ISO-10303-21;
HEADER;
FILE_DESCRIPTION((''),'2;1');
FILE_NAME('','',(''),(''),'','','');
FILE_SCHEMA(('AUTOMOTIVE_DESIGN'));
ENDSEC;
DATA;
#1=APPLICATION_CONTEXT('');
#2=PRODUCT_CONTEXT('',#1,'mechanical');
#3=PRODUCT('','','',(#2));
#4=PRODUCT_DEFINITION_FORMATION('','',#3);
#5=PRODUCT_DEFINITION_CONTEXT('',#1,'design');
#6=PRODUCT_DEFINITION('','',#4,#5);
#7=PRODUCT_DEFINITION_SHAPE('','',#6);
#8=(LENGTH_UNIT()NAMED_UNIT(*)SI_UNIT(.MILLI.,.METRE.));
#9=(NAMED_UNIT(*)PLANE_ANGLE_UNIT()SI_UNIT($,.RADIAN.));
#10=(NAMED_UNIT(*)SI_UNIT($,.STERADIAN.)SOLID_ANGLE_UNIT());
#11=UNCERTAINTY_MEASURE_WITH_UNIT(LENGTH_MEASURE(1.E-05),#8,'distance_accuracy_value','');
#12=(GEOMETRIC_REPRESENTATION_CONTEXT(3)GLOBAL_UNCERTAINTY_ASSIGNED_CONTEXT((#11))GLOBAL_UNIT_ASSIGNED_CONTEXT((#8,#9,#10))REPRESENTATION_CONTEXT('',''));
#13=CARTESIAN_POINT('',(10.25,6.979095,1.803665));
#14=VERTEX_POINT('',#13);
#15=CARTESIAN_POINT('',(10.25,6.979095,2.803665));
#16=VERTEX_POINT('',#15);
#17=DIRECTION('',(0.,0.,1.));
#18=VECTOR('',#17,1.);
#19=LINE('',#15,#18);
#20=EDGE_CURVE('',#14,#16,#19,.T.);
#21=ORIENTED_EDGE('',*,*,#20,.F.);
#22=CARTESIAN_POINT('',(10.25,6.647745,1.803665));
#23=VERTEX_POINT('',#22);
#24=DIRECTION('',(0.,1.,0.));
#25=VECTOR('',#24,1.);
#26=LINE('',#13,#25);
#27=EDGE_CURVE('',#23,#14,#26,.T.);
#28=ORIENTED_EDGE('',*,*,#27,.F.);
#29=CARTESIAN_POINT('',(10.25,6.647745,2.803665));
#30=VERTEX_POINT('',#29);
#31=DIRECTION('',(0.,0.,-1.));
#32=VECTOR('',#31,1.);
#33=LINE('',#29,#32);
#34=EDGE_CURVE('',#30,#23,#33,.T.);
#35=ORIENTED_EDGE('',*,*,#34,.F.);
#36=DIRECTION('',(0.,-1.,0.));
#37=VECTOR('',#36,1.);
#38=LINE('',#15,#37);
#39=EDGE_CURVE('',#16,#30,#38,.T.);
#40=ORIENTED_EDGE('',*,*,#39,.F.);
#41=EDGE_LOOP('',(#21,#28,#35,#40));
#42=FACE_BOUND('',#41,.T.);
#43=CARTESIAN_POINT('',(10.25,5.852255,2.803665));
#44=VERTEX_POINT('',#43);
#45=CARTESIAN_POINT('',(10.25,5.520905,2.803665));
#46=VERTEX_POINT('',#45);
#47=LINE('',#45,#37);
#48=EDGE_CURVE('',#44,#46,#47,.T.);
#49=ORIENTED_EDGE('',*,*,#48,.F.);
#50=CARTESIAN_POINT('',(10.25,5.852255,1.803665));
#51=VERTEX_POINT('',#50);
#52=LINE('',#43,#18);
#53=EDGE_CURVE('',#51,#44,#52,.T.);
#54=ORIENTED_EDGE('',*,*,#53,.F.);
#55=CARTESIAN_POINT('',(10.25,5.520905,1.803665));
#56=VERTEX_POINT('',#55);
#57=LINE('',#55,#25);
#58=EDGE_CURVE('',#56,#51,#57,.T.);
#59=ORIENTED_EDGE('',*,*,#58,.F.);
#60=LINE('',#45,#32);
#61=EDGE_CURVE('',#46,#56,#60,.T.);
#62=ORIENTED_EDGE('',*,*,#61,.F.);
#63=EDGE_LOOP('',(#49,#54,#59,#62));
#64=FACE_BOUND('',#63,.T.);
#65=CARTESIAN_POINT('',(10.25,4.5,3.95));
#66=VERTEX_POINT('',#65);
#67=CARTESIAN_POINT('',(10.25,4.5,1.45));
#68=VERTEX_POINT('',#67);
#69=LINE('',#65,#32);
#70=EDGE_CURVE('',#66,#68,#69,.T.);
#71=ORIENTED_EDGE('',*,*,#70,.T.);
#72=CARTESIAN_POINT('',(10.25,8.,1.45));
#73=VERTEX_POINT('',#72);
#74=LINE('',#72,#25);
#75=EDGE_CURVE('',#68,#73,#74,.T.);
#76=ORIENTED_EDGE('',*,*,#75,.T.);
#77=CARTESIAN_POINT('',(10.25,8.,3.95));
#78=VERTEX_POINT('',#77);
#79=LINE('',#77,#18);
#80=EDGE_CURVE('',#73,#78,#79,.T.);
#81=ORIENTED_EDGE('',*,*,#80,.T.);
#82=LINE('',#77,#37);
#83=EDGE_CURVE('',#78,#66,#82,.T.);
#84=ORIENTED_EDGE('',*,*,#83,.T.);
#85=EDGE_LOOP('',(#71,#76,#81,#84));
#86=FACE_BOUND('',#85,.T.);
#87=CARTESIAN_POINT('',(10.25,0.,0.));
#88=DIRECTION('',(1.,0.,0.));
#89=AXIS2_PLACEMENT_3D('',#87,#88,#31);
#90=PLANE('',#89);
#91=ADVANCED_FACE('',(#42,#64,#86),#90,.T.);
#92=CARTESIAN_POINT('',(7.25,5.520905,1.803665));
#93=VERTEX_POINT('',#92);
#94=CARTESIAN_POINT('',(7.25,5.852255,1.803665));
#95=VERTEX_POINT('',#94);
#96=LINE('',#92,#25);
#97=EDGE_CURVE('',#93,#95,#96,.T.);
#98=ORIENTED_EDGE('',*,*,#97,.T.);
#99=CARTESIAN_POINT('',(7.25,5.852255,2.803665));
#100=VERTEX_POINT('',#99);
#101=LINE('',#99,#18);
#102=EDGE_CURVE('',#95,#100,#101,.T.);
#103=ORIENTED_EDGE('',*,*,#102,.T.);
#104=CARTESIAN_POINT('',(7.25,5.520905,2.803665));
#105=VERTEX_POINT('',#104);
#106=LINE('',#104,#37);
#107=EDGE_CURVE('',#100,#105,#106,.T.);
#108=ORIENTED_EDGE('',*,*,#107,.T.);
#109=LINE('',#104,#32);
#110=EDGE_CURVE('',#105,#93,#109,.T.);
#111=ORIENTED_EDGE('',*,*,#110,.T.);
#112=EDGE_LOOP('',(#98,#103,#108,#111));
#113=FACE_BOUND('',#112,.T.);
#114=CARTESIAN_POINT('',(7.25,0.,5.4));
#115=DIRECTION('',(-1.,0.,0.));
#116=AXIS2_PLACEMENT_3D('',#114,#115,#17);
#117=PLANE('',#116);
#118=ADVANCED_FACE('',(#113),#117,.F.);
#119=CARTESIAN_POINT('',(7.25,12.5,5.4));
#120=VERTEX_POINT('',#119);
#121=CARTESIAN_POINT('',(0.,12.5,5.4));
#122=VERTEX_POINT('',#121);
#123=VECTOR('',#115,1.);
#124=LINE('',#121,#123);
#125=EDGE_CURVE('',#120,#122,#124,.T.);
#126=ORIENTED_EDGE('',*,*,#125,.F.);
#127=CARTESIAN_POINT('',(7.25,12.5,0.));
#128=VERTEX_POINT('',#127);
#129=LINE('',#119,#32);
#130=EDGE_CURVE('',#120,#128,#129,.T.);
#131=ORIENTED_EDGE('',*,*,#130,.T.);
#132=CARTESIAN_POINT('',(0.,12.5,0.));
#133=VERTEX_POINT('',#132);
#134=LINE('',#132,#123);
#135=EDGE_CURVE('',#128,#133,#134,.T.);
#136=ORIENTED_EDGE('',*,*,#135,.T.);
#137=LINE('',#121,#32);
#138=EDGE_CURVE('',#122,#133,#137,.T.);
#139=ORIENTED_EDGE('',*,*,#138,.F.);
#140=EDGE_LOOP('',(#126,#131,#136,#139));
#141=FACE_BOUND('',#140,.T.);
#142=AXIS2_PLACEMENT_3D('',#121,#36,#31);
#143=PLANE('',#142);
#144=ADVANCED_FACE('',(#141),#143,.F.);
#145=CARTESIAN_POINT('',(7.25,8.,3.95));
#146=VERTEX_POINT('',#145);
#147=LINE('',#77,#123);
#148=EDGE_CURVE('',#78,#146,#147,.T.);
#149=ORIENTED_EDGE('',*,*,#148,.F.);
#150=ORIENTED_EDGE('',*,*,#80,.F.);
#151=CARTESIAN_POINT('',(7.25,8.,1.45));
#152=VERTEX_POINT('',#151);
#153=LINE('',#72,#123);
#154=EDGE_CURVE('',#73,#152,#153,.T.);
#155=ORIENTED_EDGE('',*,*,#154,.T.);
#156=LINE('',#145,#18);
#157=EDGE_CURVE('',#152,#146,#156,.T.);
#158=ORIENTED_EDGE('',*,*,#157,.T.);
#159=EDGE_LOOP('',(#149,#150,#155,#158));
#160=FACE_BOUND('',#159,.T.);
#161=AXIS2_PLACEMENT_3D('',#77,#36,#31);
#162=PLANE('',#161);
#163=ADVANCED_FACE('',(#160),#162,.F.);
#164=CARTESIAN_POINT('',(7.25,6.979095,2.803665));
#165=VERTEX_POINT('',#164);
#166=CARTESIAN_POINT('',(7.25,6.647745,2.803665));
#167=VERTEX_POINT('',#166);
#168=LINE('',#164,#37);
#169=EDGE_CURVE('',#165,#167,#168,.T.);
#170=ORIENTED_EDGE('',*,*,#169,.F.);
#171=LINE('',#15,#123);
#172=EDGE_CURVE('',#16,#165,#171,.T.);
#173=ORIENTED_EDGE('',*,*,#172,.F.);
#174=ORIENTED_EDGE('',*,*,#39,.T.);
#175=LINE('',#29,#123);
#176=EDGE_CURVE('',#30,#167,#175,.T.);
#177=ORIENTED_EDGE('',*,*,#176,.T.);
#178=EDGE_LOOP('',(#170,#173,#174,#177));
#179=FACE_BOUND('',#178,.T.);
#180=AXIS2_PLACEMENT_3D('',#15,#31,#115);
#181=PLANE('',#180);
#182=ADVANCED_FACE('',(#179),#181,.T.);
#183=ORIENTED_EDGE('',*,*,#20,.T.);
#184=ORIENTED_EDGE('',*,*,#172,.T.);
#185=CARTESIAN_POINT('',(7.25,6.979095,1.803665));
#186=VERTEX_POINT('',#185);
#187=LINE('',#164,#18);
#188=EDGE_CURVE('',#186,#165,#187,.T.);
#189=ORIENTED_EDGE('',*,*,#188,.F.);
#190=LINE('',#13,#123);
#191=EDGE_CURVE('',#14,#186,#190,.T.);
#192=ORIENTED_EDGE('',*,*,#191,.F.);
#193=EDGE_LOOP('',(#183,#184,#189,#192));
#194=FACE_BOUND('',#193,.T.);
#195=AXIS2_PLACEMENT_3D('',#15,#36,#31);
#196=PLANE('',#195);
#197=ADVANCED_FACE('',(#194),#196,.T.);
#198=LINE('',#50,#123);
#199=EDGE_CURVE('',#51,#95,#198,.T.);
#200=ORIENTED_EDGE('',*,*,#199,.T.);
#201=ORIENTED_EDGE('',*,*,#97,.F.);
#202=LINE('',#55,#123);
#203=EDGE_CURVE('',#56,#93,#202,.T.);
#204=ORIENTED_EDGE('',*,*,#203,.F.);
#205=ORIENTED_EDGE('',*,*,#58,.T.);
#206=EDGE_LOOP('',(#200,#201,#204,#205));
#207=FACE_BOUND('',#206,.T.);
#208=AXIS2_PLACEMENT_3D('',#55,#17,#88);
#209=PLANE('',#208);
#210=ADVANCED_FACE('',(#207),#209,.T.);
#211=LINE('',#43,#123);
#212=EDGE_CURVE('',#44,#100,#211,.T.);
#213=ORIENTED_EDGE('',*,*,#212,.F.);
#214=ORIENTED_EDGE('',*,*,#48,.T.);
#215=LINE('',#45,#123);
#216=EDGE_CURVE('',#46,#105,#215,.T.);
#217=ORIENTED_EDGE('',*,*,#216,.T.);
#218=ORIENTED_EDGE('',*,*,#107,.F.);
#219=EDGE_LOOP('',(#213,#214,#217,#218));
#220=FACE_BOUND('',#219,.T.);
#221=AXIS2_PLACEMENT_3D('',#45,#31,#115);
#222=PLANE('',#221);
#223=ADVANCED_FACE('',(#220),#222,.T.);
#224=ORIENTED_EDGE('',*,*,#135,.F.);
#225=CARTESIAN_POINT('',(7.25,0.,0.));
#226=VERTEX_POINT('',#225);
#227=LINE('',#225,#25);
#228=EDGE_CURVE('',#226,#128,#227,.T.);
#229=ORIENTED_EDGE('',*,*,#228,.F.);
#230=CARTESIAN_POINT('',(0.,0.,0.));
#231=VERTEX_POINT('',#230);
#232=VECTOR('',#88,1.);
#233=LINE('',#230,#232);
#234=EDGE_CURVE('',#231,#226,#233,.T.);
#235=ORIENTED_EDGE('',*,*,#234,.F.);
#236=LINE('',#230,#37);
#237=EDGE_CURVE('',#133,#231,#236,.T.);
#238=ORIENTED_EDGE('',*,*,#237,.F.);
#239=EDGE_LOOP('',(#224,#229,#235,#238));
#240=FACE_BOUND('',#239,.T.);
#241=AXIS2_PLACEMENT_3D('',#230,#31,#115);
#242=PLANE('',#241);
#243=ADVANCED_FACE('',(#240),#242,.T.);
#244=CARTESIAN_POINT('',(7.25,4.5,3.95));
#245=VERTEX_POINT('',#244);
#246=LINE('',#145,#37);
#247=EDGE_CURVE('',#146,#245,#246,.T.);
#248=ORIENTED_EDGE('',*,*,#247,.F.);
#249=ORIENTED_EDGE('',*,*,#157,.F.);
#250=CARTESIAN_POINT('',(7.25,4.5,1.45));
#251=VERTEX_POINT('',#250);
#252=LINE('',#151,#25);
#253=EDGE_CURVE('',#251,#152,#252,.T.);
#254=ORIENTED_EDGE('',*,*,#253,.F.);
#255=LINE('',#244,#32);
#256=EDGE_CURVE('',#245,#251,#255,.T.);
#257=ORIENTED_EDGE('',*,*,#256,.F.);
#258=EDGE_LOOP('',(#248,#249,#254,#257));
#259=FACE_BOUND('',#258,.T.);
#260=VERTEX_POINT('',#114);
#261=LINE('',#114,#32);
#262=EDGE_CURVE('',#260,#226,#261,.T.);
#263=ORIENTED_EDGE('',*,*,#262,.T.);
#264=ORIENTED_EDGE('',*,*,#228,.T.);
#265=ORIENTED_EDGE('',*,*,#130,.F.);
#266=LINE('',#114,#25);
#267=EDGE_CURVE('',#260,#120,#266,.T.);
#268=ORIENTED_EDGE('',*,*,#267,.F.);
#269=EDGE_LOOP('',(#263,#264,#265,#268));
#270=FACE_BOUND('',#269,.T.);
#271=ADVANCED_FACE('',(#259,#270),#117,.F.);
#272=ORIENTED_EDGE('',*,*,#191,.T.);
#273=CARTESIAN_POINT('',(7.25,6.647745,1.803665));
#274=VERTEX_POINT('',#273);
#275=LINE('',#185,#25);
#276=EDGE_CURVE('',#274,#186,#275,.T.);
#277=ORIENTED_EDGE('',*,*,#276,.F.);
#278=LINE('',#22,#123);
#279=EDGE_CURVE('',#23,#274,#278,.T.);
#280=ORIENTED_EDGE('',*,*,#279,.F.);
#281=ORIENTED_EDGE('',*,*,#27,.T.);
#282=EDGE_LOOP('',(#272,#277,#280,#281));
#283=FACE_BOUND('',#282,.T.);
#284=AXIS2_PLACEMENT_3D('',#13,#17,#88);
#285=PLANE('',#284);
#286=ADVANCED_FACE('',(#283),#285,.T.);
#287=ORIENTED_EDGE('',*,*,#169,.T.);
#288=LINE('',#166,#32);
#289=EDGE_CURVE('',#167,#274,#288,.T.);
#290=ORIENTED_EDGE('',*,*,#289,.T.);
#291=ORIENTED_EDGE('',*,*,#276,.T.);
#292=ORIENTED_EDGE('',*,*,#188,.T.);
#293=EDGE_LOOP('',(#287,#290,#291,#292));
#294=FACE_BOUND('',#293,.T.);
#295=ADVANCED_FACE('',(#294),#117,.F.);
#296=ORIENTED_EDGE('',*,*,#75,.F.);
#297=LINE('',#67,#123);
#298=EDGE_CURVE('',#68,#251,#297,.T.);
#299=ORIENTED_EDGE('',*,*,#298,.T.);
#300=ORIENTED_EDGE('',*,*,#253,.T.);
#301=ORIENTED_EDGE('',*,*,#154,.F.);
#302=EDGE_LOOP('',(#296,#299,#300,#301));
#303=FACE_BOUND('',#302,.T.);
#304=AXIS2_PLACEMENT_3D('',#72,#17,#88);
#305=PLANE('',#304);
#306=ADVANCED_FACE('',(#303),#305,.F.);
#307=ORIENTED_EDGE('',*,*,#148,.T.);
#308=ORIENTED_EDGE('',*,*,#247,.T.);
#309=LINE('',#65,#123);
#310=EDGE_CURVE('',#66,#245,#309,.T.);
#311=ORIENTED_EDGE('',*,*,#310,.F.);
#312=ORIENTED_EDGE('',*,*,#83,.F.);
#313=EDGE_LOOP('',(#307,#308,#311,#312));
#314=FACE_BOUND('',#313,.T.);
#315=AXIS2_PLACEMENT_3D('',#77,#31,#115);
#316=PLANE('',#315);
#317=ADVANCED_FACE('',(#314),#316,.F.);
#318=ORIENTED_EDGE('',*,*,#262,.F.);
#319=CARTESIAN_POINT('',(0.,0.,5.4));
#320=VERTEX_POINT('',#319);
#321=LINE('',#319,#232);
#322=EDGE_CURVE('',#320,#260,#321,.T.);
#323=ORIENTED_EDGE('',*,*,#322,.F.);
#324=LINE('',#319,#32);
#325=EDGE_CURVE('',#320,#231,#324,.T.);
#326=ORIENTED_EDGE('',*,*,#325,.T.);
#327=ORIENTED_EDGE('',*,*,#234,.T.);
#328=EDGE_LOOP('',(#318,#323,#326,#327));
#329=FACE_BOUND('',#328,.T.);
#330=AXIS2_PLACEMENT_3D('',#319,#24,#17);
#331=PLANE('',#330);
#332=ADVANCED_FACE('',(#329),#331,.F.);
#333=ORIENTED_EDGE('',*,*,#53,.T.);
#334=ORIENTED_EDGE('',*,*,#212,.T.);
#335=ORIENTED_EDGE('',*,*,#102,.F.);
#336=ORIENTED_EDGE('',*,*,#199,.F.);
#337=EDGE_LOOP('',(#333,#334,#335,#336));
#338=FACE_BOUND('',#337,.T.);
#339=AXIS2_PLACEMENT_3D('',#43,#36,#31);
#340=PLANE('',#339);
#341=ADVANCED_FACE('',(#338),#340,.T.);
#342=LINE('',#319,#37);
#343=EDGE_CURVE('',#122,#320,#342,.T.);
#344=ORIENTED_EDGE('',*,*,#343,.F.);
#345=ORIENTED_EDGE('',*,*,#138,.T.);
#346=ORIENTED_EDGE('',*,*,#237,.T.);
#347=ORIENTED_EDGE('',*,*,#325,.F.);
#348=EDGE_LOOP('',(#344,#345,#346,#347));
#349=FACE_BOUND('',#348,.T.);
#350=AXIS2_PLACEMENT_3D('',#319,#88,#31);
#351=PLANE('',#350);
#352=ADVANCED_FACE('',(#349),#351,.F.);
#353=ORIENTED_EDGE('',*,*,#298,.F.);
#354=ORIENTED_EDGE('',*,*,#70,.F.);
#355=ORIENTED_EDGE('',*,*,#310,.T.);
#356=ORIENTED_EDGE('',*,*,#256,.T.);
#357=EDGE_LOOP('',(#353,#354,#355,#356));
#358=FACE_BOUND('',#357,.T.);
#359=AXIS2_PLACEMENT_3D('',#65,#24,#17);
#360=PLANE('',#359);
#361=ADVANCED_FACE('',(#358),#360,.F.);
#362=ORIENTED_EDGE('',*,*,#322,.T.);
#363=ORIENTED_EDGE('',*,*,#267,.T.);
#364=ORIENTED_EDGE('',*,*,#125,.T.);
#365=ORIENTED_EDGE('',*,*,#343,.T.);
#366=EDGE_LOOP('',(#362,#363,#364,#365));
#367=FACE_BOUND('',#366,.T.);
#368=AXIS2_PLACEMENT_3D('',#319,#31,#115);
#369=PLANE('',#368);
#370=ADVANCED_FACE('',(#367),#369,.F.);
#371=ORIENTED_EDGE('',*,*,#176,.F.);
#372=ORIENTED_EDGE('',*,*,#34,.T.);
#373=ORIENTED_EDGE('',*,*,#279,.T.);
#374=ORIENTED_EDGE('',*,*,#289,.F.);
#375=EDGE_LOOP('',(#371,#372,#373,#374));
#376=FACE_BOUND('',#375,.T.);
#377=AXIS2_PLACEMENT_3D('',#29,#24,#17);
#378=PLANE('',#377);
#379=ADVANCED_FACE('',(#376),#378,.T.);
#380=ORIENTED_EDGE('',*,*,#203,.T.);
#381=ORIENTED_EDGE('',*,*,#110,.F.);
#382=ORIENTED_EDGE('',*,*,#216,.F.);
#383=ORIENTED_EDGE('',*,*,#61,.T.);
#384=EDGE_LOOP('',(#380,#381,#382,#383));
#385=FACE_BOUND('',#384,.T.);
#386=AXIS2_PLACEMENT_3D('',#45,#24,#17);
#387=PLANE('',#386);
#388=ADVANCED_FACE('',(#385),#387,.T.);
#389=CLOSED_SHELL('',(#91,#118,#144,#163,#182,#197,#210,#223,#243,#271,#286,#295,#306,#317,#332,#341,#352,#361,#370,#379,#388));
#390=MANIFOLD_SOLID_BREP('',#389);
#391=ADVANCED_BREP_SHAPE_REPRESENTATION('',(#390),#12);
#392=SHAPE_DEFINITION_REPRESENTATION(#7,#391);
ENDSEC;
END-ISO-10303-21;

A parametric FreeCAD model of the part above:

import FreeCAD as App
import Part
import Sketcher
from FreeCAD import Vector

doc = App.newDocument("Part")
body = doc.addObject("PartDesign::Body", "Body")

# Sketch on XY plane
sketch1 = doc.addObject("Sketcher::SketchObject", "Sketch")
body.addObject(sketch1)
sketch1.AttachmentSupport = (doc.XY_Plane, [""])
sketch1.MapMode = "FlatFace"
sketch1.addGeometry(Part.LineSegment(Vector(0, 12, 0), Vector(0, 0, 0)), False)
sketch1.addGeometry(Part.LineSegment(Vector(0, 0, 0), Vector(7, 0, 0)), False)
sketch1.addGeometry(Part.LineSegment(Vector(7, 0, 0), Vector(7, 12, 0)), False)
sketch1.addGeometry(Part.LineSegment(Vector(7, 12, 0), Vector(0, 12, 0)), False)
sketch1.addConstraint(Sketcher.Constraint("Coincident", 0, 2, 1, 1))
sketch1.addConstraint(Sketcher.Constraint("Coincident", 1, 2, 2, 1))
sketch1.addConstraint(Sketcher.Constraint("Coincident", 2, 2, 3, 1))
sketch1.addConstraint(Sketcher.Constraint("Coincident", 3, 2, 0, 1))
sketch1.addConstraint(Sketcher.Constraint("Vertical", 0))
sketch1.addConstraint(Sketcher.Constraint("Horizontal", 1))
sketch1.addConstraint(Sketcher.Constraint("Vertical", 2))
sketch1.addConstraint(Sketcher.Constraint("Horizontal", 3))
sketch1.addConstraint(Sketcher.Constraint("Coincident", 0, 2, -1, 1))
sketch1.addConstraint(Sketcher.Constraint("DistanceY", 0, 2, 0, 1, 12.5))
sketch1.addConstraint(Sketcher.Constraint("DistanceX", 1, 1, 1, 2, 7.25))
pad1 = doc.addObject("PartDesign::Pad", "Pad")
body.addObject(pad1)
pad1.Profile = sketch1
pad1.Length = 5.4

# Sketch on YZ plane
sketch2 = doc.addObject("Sketcher::SketchObject", "Sketch001")
body.addObject(sketch2)
sketch2.AttachmentSupport = (doc.YZ_Plane, [""])
sketch2.MapMode = "FlatFace"
sketch2.AttachmentOffset = App.Placement(Vector(0, 0, 7.25), App.Rotation())
sketch2.addGeometry(Part.LineSegment(Vector(8, 3.95, 0), Vector(4.5, 3.95, 0)), False)
sketch2.addGeometry(Part.LineSegment(Vector(4.5, 3.95, 0), Vector(4.5, 1.45, 0)), False)
sketch2.addGeometry(Part.LineSegment(Vector(4.5, 1.45, 0), Vector(8, 1.45, 0)), False)
sketch2.addGeometry(Part.LineSegment(Vector(8, 1.45, 0), Vector(8, 3.95, 0)), False)
sketch2.addGeometry(Part.LineSegment(Vector(5.52, 1.8, 0), Vector(5.52, 2.8, 0)), False)
sketch2.addGeometry(Part.LineSegment(Vector(5.52, 2.8, 0), Vector(5.85, 2.8, 0)), False)
sketch2.addGeometry(Part.LineSegment(Vector(5.85, 2.8, 0), Vector(5.85, 1.8, 0)), False)
sketch2.addGeometry(Part.LineSegment(Vector(5.85, 1.8, 0), Vector(5.52, 1.8, 0)), False)
sketch2.addGeometry(Part.LineSegment(Vector(6.65, 1.8, 0), Vector(6.65, 2.8, 0)), False)
sketch2.addGeometry(Part.LineSegment(Vector(6.65, 2.8, 0), Vector(6.98, 2.8, 0)), False)
sketch2.addGeometry(Part.LineSegment(Vector(6.98, 2.8, 0), Vector(6.98, 1.8, 0)), False)
sketch2.addGeometry(Part.LineSegment(Vector(6.98, 1.8, 0), Vector(6.65, 1.8, 0)), False)
sketch2.addConstraint(Sketcher.Constraint("Coincident", 0, 2, 1, 1))
sketch2.addConstraint(Sketcher.Constraint("Coincident", 1, 2, 2, 1))
sketch2.addConstraint(Sketcher.Constraint("Coincident", 2, 2, 3, 1))
sketch2.addConstraint(Sketcher.Constraint("Coincident", 3, 2, 0, 1))
sketch2.addConstraint(Sketcher.Constraint("Coincident", 4, 2, 5, 1))
sketch2.addConstraint(Sketcher.Constraint("Coincident", 5, 2, 6, 1))
sketch2.addConstraint(Sketcher.Constraint("Coincident", 6, 2, 7, 1))
sketch2.addConstraint(Sketcher.Constraint("Coincident", 7, 2, 4, 1))
sketch2.addConstraint(Sketcher.Constraint("Coincident", 8, 2, 9, 1))
sketch2.addConstraint(Sketcher.Constraint("Coincident", 9, 2, 10, 1))
sketch2.addConstraint(Sketcher.Constraint("Coincident", 10, 2, 11, 1))
sketch2.addConstraint(Sketcher.Constraint("Coincident", 11, 2, 8, 1))
sketch2.addConstraint(Sketcher.Constraint("Horizontal", 0))
sketch2.addConstraint(Sketcher.Constraint("Vertical", 1))
sketch2.addConstraint(Sketcher.Constraint("Horizontal", 2))
sketch2.addConstraint(Sketcher.Constraint("Vertical", 3))
sketch2.addConstraint(Sketcher.Constraint("Vertical", 4))
sketch2.addConstraint(Sketcher.Constraint("Horizontal", 5))
sketch2.addConstraint(Sketcher.Constraint("Vertical", 6))
sketch2.addConstraint(Sketcher.Constraint("Horizontal", 7))
sketch2.addConstraint(Sketcher.Constraint("Vertical", 8))
sketch2.addConstraint(Sketcher.Constraint("Horizontal", 9))
sketch2.addConstraint(Sketcher.Constraint("Vertical", 10))
sketch2.addConstraint(Sketcher.Constraint("Horizontal", 11))
sketch2.addConstraint(Sketcher.Constraint("Horizontal", 5, 2, 8, 2))
sketch2.addConstraint(Sketcher.Constraint("Horizontal", 7, 2, 10, 2))
sketch2.addConstraint(Sketcher.Constraint("Equal", 7, 9))
sketch2.addConstraint(Sketcher.Constraint("DistanceY", 4, 1, 4, 2, 1.0))
sketch2.addConstraint(Sketcher.Constraint("DistanceX", 0, 2, 0, 1, 3.5))
sketch2.addConstraint(Sketcher.Constraint("DistanceY", 1, 2, 1, 1, 2.5))
sketch2.addConstraint(Sketcher.Constraint("DistanceX", -1, 1, 2, 2, 8.0))
sketch2.addConstraint(Sketcher.Constraint("DistanceY", -1, 1, 0, 2, 3.95))
sketch2.addConstraint(Sketcher.Constraint("DistanceX", 5, 1, 5, 2, 0.33135))
sketch2.addConstraint(Sketcher.Constraint("DistanceX", 5, 2, 8, 2, 0.79549))
sketch2.addConstraint(Sketcher.Constraint("DistanceX", -1, 1, 4, 2, 5.520905))
sketch2.addConstraint(Sketcher.Constraint("DistanceY", -1, 1, 4, 2, 2.803665))
pad2 = doc.addObject("PartDesign::Pad", "Pad001")
body.addObject(pad2)
pad2.Profile = sketch2
pad2.Length = 3

doc.recompute()
